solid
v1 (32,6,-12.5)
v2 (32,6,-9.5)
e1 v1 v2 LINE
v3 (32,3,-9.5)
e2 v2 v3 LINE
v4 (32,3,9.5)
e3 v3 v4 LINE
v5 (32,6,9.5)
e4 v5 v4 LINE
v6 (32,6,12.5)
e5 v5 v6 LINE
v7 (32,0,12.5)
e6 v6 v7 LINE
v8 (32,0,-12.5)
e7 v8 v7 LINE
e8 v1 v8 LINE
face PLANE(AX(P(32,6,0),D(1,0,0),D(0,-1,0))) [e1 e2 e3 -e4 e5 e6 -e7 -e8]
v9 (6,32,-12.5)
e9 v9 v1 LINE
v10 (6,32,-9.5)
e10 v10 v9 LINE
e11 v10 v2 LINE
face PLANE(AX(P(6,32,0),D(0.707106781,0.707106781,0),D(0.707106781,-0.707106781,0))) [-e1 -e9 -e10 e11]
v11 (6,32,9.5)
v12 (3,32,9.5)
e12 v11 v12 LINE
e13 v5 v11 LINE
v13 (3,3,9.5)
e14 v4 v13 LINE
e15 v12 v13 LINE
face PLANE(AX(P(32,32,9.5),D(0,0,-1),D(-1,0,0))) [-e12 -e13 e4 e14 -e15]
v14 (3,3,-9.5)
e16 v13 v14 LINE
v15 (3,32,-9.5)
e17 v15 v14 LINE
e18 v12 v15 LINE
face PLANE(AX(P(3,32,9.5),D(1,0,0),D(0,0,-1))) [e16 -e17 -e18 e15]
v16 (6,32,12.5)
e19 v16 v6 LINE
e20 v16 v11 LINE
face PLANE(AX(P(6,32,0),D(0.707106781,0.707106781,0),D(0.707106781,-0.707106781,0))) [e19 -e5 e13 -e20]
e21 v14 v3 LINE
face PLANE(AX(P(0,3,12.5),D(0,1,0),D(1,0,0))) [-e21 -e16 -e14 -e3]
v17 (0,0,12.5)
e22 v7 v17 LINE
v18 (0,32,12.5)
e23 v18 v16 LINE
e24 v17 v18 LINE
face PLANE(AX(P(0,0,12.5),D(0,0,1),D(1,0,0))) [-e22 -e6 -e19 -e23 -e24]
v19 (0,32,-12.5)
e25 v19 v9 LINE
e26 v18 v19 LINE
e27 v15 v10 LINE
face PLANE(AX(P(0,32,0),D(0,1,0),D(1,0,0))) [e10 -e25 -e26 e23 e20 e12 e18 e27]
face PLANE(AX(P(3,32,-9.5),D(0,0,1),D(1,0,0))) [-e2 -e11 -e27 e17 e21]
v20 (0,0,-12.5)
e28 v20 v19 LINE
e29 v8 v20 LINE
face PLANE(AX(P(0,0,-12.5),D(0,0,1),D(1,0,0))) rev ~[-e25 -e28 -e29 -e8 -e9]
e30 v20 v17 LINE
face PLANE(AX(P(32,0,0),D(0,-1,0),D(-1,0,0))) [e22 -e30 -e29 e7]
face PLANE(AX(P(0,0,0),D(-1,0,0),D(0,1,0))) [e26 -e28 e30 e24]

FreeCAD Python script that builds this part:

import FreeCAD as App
import Part
import Sketcher

V = App.Vector

doc = App.newDocument("Part")
body = doc.addObject("PartDesign::Body", "Body")

# Sketch on XY plane
sketch1 = doc.addObject("Sketcher::SketchObject", "Sketch")
body.addObject(sketch1)
sketch1.AttachmentSupport = (doc.XY_Plane, [""])
sketch1.MapMode = "FlatFace"
sketch1.addGeometry([
    Part.LineSegment(V(0, 32, 0), V(0, 0, 0)),  # 0
    Part.LineSegment(V(0, 0, 0), V(32, 0, 0)),  # 1
    Part.LineSegment(V(32, 0, 0), V(32, 6, 0)),  # 2
    Part.LineSegment(V(32, 6, 0), V(6, 32, 0)),  # 3
    Part.LineSegment(V(6, 32, 0), V(0, 32, 0)),  # 4
], False)
sketch1.addConstraint([
    Sketcher.Constraint("Coincident", 0, 2, 1, 1),
    Sketcher.Constraint("Coincident", 1, 2, 2, 1),
    Sketcher.Constraint("Coincident", 2, 2, 3, 1),
    Sketcher.Constraint("Coincident", 3, 2, 4, 1),
    Sketcher.Constraint("Coincident", 4, 2, 0, 1),
    Sketcher.Constraint("Vertical", 0),
    Sketcher.Constraint("Horizontal", 1),
    Sketcher.Constraint("Vertical", 2),
    Sketcher.Constraint("Horizontal", 4),
    Sketcher.Constraint("Coincident", 0, 2, -1, 1),
    Sketcher.Constraint("Equal", 1, 0),
    Sketcher.Constraint("Equal", 4, 2),
    Sketcher.Constraint("DistanceX", 1, 1, 1, 2, 32.0),
    Sketcher.Constraint("DistanceX", 4, 2, 4, 1, 6.0),
])
pad1 = doc.addObject("PartDesign::Pad", "Pad")
body.addObject(pad1)
pad1.Profile = sketch1
pad1.Length = 25
pad1.Midplane = True

# Sketch on XZ plane
sketch2 = doc.addObject("Sketcher::SketchObject", "Sketch001")
body.addObject(sketch2)
sketch2.AttachmentSupport = (doc.XZ_Plane, [""])
sketch2.MapMode = "FlatFace"
sketch2.AttachmentOffset = App.Placement(V(0, 0, -32), App.Rotation())
sketch2.addGeometry([
    Part.LineSegment(V(32, -10, 0), V(3, -10, 0)),
    Part.LineSegment(V(3, -10, 0), V(3, 10, 0)),
    Part.LineSegment(V(3, 10, 0), V(32, 10, 0)),
    Part.LineSegment(V(32, 10, 0), V(32, -10, 0)),
], False)
sketch2.addConstraint([
    Sketcher.Constraint("Coincident", 0, 2, 1, 1),
    Sketcher.Constraint("Coincident", 1, 2, 2, 1),
    Sketcher.Constraint("Coincident", 2, 2, 3, 1),
    Sketcher.Constraint("Coincident", 3, 2, 0, 1),
    Sketcher.Constraint("Horizontal", 0),
    Sketcher.Constraint("Vertical", 1),
    Sketcher.Constraint("Horizontal", 2),
    Sketcher.Constraint("Vertical", 3),
    Sketcher.Constraint("DistanceX", -1, 1, 0, 2, 3.0),
    Sketcher.Constraint("DistanceX", 0, 2, 0, 1, 29.0),
    Sketcher.Constraint("DistanceY", 1, 1, 1, 2, 19.0),
    Sketcher.Constraint("DistanceY", 0, 2, -1, 1, 9.5),
])
pocket1 = doc.addObject("PartDesign::Pocket", "Pocket")
body.addObject(pocket1)
pocket1.Profile = sketch2
pocket1.Length = 29
pocket1.Reversed = True

doc.recompute()
